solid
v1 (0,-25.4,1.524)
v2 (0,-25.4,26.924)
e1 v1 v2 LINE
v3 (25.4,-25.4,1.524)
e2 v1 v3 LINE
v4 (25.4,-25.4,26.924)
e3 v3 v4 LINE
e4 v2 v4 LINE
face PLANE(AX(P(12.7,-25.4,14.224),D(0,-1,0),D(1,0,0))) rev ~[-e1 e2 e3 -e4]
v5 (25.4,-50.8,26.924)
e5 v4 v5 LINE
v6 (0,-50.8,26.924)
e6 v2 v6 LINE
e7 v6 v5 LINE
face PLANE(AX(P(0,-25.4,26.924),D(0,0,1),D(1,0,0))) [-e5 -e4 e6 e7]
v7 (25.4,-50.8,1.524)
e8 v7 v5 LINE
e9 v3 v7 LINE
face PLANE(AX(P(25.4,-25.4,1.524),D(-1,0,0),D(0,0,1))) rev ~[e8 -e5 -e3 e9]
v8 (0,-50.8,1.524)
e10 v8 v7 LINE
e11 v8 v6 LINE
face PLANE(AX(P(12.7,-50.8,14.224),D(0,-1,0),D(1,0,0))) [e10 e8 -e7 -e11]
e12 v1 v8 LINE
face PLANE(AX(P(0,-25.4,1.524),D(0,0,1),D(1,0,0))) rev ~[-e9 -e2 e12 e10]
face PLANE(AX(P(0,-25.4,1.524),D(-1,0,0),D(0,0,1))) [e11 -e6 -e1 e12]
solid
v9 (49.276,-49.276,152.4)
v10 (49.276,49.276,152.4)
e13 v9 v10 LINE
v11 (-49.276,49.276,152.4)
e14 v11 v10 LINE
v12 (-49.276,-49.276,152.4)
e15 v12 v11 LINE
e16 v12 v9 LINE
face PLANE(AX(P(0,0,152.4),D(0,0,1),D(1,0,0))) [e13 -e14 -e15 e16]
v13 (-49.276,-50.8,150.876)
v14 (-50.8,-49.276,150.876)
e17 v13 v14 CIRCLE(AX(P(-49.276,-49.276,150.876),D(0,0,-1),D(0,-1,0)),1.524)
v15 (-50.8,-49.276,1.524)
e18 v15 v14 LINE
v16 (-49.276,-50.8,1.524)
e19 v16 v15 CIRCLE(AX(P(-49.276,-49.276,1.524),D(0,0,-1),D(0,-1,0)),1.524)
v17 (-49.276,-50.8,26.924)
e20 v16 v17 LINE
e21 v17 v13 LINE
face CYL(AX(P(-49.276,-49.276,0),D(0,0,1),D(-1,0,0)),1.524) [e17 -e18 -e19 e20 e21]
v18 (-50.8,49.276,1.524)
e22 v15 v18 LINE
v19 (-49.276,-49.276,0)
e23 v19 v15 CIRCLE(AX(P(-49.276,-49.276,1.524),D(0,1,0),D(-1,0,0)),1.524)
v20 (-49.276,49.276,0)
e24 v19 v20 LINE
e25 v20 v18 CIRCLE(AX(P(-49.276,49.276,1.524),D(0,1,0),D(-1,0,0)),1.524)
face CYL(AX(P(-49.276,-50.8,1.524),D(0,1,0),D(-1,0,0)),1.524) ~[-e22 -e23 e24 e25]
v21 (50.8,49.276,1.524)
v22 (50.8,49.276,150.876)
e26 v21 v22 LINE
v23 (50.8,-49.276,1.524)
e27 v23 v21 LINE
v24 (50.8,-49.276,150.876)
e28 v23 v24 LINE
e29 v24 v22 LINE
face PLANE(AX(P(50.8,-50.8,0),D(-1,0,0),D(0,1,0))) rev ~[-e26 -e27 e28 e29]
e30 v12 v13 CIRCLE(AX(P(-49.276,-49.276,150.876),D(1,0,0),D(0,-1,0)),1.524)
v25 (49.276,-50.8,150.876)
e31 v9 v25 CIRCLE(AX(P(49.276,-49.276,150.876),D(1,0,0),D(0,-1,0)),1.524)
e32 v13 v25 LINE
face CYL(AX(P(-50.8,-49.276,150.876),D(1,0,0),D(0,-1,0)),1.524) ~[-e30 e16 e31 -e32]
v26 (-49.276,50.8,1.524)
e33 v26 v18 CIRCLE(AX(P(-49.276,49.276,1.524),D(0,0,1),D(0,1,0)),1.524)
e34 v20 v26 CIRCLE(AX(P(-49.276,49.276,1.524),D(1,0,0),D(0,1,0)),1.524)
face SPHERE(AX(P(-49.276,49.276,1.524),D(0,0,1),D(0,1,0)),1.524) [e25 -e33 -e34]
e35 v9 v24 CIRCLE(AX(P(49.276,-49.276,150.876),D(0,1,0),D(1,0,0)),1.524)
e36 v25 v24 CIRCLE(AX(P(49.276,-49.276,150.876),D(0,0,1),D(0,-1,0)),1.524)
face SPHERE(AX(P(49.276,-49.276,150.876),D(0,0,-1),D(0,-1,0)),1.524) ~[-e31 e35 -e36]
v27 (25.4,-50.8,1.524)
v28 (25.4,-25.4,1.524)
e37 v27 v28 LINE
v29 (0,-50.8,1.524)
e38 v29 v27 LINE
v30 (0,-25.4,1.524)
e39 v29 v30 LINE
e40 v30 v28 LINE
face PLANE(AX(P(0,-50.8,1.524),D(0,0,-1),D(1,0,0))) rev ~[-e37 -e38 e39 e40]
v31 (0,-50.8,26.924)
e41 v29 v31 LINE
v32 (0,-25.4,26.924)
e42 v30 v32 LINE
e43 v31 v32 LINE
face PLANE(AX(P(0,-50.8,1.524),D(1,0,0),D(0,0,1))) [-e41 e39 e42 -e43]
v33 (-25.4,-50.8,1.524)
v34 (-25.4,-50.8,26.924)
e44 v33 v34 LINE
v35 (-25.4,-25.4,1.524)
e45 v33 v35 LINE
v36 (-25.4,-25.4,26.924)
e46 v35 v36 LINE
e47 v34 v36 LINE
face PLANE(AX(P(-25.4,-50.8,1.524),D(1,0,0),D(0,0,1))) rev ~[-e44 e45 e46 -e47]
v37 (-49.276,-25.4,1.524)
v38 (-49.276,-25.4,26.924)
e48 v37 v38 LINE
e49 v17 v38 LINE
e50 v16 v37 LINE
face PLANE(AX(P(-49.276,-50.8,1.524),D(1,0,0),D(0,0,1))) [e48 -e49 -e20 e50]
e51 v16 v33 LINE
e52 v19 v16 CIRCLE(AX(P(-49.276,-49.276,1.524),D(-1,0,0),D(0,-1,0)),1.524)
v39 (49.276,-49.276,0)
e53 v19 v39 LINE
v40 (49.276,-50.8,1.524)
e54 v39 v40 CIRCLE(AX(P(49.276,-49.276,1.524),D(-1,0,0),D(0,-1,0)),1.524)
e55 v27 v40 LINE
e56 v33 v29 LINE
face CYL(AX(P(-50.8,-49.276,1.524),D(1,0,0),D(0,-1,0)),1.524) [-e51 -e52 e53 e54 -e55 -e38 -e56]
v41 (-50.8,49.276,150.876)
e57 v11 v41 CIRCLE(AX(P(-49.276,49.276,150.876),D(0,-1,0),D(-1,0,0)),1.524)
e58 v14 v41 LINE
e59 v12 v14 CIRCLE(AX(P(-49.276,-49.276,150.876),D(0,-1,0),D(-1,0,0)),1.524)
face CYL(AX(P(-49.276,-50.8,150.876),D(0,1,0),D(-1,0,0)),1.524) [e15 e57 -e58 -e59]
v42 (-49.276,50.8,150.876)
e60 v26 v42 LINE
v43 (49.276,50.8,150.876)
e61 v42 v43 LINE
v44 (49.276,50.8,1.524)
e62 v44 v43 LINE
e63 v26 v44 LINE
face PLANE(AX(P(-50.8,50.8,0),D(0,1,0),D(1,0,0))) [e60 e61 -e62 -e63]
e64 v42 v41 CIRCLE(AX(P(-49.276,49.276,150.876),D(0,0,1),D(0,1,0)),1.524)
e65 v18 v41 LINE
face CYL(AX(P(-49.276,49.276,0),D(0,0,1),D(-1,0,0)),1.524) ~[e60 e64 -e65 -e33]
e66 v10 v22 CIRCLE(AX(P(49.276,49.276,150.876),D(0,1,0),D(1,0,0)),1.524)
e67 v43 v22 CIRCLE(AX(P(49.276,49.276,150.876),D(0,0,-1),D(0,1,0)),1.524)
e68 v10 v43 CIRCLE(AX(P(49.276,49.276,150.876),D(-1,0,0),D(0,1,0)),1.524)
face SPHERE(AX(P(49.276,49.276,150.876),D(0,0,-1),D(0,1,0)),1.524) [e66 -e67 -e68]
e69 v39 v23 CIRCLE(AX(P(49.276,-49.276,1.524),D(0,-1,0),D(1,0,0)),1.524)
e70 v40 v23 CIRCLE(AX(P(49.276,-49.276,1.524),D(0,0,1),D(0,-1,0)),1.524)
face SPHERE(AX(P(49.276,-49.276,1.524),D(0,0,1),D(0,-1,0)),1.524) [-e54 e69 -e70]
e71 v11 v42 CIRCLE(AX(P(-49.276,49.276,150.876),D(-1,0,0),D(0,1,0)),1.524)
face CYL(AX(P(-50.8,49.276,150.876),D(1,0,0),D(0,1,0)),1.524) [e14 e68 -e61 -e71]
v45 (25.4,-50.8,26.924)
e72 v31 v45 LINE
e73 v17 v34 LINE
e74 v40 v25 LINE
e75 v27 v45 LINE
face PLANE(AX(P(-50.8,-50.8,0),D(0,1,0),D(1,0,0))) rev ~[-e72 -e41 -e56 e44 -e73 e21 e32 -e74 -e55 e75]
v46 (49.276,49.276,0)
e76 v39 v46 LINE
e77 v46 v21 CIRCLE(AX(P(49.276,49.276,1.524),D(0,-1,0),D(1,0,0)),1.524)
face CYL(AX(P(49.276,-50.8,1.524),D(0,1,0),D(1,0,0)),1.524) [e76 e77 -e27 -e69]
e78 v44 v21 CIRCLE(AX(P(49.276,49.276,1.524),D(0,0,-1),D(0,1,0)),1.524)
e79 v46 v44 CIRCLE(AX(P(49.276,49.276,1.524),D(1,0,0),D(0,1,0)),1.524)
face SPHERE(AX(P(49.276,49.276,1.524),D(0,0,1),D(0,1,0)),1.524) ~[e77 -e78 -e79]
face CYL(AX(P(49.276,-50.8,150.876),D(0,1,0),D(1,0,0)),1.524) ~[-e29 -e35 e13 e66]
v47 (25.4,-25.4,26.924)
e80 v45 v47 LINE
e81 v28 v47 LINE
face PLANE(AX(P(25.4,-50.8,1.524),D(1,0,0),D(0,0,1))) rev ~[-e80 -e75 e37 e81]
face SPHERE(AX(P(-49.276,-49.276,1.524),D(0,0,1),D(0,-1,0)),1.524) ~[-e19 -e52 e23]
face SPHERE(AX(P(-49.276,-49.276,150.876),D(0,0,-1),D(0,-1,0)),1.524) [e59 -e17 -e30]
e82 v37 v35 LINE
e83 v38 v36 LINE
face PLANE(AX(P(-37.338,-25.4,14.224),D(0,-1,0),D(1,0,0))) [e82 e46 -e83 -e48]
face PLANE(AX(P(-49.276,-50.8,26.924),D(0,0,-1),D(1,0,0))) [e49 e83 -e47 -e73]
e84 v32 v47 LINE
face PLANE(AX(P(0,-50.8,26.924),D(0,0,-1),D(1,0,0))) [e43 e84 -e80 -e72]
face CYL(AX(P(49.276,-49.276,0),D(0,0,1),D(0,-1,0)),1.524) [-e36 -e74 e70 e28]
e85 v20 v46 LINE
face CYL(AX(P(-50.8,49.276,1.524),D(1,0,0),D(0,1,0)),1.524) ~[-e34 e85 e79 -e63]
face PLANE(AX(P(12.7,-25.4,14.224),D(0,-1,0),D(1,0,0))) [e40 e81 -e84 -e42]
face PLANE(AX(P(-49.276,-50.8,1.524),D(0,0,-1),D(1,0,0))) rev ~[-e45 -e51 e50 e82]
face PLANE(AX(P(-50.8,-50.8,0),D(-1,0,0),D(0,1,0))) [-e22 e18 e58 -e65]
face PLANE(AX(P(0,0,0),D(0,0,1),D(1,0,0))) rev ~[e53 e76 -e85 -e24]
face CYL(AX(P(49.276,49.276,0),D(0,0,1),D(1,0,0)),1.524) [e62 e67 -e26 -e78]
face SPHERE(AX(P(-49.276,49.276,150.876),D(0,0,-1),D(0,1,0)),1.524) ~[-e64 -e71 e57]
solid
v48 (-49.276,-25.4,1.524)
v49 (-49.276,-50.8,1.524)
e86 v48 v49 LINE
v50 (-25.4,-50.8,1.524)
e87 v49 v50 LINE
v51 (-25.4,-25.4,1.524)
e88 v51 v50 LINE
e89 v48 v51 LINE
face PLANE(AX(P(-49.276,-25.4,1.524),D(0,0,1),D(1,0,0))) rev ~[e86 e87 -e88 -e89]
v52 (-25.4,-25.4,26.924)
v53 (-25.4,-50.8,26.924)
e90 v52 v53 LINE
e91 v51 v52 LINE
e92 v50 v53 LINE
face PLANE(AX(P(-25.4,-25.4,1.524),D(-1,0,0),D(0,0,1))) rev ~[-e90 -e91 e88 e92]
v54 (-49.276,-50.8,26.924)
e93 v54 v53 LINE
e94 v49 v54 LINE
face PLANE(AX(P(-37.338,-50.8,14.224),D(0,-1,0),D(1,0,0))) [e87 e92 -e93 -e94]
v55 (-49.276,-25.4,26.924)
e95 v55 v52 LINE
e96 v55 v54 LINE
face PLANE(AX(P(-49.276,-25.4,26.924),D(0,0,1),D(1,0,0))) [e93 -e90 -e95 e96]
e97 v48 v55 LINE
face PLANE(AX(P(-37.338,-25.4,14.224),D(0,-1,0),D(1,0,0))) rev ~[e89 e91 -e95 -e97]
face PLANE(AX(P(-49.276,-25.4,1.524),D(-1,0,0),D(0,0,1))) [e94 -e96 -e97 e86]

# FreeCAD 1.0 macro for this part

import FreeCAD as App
import Part
import Sketcher
from FreeCAD import Vector
Q = App.Units.Quantity

doc = App.newDocument("Part")
body = doc.addObject("PartDesign::Body", "Body")

sketch1 = body.newObject("Sketcher::SketchObject", "Sketch")
sketch1.AttachmentSupport = (doc.getObject("XY_Plane"), [""])
sketch1.MapMode = "FlatFace"
sketch1.addGeometry([
    Part.LineSegment(Vector(-51, 51, 0), Vector(-51, -51, 0)),
    Part.LineSegment(Vector(-51, -51, 0), Vector(51, -51, 0)),
    Part.LineSegment(Vector(51, -51, 0), Vector(51, 51, 0)),
    Part.LineSegment(Vector(51, 51, 0), Vector(-51, 51, 0)),
], False)
sketch1.addConstraint([
    Sketcher.Constraint("Coincident", 0, 2, 1, 1),
    Sketcher.Constraint("Coincident", 1, 2, 2, 1),
    Sketcher.Constraint("Coincident", 2, 2, 3, 1),
    Sketcher.Constraint("Coincident", 3, 2, 0, 1),
    Sketcher.Constraint("Vertical", 0),
    Sketcher.Constraint("Horizontal", 1),
    Sketcher.Constraint("Vertical", 2),
    Sketcher.Constraint("Horizontal", 3),
    Sketcher.Constraint("Symmetric", 0, 2, 2, 2, -1, 1),
    Sketcher.Constraint("Equal", 3, 0),
    Sketcher.Constraint("DistanceX", 1, 1, 1, 2, Q("4 in")),
])
pad1 = body.newObject("PartDesign::Pad", "Pad")
pad1.Profile = sketch1
pad1.Length = Q("6 in")
doc.recompute()

fillet = body.newObject("PartDesign::Fillet", "Fillet")
fillet.Base = (pad1, ["Edge1"])
fillet.UseAllEdges = True
fillet.Radius = Q("0.06 in")

sketch2 = body.newObject("Sketcher::SketchObject", "Sketch001")
sketch2.AttachmentSupport = (doc.getObject("XZ_Plane"), [""])
sketch2.MapMode = "FlatFace"
sketch2.AttachmentOffset = App.Placement(Vector(0, 0, 2 * 25.4), App.Rotation())
sketch2.addGeometry([
    Part.LineSegment(Vector(-49, 27, 0), Vector(-49, 2, 0)),
    Part.LineSegment(Vector(-49, 2, 0), Vector(-25, 2, 0)),
    Part.LineSegment(Vector(-25, 2, 0), Vector(-25, 27, 0)),
    Part.LineSegment(Vector(-25, 27, 0), Vector(-49, 27, 0)),
    Part.LineSegment(Vector(0, 27, 0), Vector(0, 2, 0)),
    Part.LineSegment(Vector(0, 2, 0), Vector(25, 2, 0)),
    Part.LineSegment(Vector(25, 2, 0), Vector(25, 27, 0)),
    Part.LineSegment(Vector(25, 27, 0), Vector(0, 27, 0)),
], False)
sketch2.addConstraint([
    Sketcher.Constraint("Coincident", 0, 2, 1, 1),
    Sketcher.Constraint("Coincident", 1, 2, 2, 1),
    Sketcher.Constraint("Coincident", 2, 2, 3, 1),
    Sketcher.Constraint("Coincident", 3, 2, 0, 1),
    Sketcher.Constraint("Coincident", 4, 2, 5, 1),
    Sketcher.Constraint("Coincident", 5, 2, 6, 1),
    Sketcher.Constraint("Coincident", 6, 2, 7, 1),
    Sketcher.Constraint("Coincident", 7, 2, 4, 1),
    Sketcher.Constraint("Vertical", 0),
    Sketcher.Constraint("Horizontal", 1),
    Sketcher.Constraint("Vertical", 2),
    Sketcher.Constraint("Horizontal", 3),
    Sketcher.Constraint("Vertical", 4),
    Sketcher.Constraint("Horizontal", 5),
    Sketcher.Constraint("Vertical", 6),
    Sketcher.Constraint("Horizontal", 7),
    Sketcher.Constraint("Symmetric", 1, 2, 5, 2, -2),
    Sketcher.Constraint("PointOnObject", 4, 2, -2),
    Sketcher.Constraint("Horizontal", 3, 2, 6, 2),
    Sketcher.Constraint("Equal", 7, 0),
    Sketcher.Constraint("DistanceX", 5, 1, 5, 2, Q("1 in")),
    Sketcher.Constraint("DistanceX", 1, 1, 1, 2, Q("0.94 in")),
    Sketcher.Constraint("DistanceY", -1, 1, 0, 2, Q("0.06 in")),
])
pocket1 = body.newObject("PartDesign::Pocket", "Pocket")
pocket1.Profile = sketch2
pocket1.Length = Q("1 in")
body2 = doc.addObject("PartDesign::Body", "Body001")
body2.AllowCompound = True

sketch3 = body2.newObject("Sketcher::SketchObject", "Sketch002")
sketch3.AttachmentSupport = (doc.getObject("XZ_Plane001"), [""])
sketch3.MapMode = "FlatFace"
sketch3.AttachmentOffset = App.Placement(Vector(0, 0, 1 * 25.4), App.Rotation())
sketch3.addGeometry([
    Part.LineSegment(Vector(0, 27, 0), Vector(0, 2, 0)),
    Part.LineSegment(Vector(0, 2, 0), Vector(25, 2, 0)),
    Part.LineSegment(Vector(25, 2, 0), Vector(25, 27, 0)),
    Part.LineSegment(Vector(25, 27, 0), Vector(0, 27, 0)),
    Part.LineSegment(Vector(-49, 27, 0), Vector(-49, 2, 0)),
    Part.LineSegment(Vector(-49, 2, 0), Vector(-25, 2, 0)),
    Part.LineSegment(Vector(-25, 2, 0), Vector(-25, 27, 0)),
    Part.LineSegment(Vector(-25, 27, 0), Vector(-49, 27, 0)),
], False)
sketch3.addConstraint([
    Sketcher.Constraint("Coincident", 0, 2, 1, 1),
    Sketcher.Constraint("Coincident", 1, 2, 2, 1),
    Sketcher.Constraint("Coincident", 2, 2, 3, 1),
    Sketcher.Constraint("Coincident", 3, 2, 0, 1),
    Sketcher.Constraint("Coincident", 4, 2, 5, 1),
    Sketcher.Constraint("Coincident", 5, 2, 6, 1),
    Sketcher.Constraint("Coincident", 6, 2, 7, 1),
    Sketcher.Constraint("Coincident", 7, 2, 4, 1),
    Sketcher.Constraint("Vertical", 0),
    Sketcher.Constraint("Horizontal", 1),
    Sketcher.Constraint("Vertical", 2),
    Sketcher.Constraint("Horizontal", 3),
    Sketcher.Constraint("Vertical", 4),
    Sketcher.Constraint("Horizontal", 5),
    Sketcher.Constraint("Vertical", 6),
    Sketcher.Constraint("Horizontal", 7),
    Sketcher.Constraint("Symmetric", 1, 2, 5, 2, -2),
    Sketcher.Constraint("PointOnObject", 0, 2, -2),
    Sketcher.Constraint("Horizontal", 3, 2, 6, 2),
    Sketcher.Constraint("Equal", 3, 0),
    Sketcher.Constraint("DistanceX", 1, 1, 1, 2, Q("1 in")),
    Sketcher.Constraint("DistanceX", 5, 1, 5, 2, Q("0.94 in")),
    Sketcher.Constraint("DistanceY", -1, 1, 0, 2, Q("0.06 in")),
])
pad2 = body2.newObject("PartDesign::Pad", "Pad001")
pad2.Profile = sketch3
pad2.Length = Q("1 in")

doc.recompute()
